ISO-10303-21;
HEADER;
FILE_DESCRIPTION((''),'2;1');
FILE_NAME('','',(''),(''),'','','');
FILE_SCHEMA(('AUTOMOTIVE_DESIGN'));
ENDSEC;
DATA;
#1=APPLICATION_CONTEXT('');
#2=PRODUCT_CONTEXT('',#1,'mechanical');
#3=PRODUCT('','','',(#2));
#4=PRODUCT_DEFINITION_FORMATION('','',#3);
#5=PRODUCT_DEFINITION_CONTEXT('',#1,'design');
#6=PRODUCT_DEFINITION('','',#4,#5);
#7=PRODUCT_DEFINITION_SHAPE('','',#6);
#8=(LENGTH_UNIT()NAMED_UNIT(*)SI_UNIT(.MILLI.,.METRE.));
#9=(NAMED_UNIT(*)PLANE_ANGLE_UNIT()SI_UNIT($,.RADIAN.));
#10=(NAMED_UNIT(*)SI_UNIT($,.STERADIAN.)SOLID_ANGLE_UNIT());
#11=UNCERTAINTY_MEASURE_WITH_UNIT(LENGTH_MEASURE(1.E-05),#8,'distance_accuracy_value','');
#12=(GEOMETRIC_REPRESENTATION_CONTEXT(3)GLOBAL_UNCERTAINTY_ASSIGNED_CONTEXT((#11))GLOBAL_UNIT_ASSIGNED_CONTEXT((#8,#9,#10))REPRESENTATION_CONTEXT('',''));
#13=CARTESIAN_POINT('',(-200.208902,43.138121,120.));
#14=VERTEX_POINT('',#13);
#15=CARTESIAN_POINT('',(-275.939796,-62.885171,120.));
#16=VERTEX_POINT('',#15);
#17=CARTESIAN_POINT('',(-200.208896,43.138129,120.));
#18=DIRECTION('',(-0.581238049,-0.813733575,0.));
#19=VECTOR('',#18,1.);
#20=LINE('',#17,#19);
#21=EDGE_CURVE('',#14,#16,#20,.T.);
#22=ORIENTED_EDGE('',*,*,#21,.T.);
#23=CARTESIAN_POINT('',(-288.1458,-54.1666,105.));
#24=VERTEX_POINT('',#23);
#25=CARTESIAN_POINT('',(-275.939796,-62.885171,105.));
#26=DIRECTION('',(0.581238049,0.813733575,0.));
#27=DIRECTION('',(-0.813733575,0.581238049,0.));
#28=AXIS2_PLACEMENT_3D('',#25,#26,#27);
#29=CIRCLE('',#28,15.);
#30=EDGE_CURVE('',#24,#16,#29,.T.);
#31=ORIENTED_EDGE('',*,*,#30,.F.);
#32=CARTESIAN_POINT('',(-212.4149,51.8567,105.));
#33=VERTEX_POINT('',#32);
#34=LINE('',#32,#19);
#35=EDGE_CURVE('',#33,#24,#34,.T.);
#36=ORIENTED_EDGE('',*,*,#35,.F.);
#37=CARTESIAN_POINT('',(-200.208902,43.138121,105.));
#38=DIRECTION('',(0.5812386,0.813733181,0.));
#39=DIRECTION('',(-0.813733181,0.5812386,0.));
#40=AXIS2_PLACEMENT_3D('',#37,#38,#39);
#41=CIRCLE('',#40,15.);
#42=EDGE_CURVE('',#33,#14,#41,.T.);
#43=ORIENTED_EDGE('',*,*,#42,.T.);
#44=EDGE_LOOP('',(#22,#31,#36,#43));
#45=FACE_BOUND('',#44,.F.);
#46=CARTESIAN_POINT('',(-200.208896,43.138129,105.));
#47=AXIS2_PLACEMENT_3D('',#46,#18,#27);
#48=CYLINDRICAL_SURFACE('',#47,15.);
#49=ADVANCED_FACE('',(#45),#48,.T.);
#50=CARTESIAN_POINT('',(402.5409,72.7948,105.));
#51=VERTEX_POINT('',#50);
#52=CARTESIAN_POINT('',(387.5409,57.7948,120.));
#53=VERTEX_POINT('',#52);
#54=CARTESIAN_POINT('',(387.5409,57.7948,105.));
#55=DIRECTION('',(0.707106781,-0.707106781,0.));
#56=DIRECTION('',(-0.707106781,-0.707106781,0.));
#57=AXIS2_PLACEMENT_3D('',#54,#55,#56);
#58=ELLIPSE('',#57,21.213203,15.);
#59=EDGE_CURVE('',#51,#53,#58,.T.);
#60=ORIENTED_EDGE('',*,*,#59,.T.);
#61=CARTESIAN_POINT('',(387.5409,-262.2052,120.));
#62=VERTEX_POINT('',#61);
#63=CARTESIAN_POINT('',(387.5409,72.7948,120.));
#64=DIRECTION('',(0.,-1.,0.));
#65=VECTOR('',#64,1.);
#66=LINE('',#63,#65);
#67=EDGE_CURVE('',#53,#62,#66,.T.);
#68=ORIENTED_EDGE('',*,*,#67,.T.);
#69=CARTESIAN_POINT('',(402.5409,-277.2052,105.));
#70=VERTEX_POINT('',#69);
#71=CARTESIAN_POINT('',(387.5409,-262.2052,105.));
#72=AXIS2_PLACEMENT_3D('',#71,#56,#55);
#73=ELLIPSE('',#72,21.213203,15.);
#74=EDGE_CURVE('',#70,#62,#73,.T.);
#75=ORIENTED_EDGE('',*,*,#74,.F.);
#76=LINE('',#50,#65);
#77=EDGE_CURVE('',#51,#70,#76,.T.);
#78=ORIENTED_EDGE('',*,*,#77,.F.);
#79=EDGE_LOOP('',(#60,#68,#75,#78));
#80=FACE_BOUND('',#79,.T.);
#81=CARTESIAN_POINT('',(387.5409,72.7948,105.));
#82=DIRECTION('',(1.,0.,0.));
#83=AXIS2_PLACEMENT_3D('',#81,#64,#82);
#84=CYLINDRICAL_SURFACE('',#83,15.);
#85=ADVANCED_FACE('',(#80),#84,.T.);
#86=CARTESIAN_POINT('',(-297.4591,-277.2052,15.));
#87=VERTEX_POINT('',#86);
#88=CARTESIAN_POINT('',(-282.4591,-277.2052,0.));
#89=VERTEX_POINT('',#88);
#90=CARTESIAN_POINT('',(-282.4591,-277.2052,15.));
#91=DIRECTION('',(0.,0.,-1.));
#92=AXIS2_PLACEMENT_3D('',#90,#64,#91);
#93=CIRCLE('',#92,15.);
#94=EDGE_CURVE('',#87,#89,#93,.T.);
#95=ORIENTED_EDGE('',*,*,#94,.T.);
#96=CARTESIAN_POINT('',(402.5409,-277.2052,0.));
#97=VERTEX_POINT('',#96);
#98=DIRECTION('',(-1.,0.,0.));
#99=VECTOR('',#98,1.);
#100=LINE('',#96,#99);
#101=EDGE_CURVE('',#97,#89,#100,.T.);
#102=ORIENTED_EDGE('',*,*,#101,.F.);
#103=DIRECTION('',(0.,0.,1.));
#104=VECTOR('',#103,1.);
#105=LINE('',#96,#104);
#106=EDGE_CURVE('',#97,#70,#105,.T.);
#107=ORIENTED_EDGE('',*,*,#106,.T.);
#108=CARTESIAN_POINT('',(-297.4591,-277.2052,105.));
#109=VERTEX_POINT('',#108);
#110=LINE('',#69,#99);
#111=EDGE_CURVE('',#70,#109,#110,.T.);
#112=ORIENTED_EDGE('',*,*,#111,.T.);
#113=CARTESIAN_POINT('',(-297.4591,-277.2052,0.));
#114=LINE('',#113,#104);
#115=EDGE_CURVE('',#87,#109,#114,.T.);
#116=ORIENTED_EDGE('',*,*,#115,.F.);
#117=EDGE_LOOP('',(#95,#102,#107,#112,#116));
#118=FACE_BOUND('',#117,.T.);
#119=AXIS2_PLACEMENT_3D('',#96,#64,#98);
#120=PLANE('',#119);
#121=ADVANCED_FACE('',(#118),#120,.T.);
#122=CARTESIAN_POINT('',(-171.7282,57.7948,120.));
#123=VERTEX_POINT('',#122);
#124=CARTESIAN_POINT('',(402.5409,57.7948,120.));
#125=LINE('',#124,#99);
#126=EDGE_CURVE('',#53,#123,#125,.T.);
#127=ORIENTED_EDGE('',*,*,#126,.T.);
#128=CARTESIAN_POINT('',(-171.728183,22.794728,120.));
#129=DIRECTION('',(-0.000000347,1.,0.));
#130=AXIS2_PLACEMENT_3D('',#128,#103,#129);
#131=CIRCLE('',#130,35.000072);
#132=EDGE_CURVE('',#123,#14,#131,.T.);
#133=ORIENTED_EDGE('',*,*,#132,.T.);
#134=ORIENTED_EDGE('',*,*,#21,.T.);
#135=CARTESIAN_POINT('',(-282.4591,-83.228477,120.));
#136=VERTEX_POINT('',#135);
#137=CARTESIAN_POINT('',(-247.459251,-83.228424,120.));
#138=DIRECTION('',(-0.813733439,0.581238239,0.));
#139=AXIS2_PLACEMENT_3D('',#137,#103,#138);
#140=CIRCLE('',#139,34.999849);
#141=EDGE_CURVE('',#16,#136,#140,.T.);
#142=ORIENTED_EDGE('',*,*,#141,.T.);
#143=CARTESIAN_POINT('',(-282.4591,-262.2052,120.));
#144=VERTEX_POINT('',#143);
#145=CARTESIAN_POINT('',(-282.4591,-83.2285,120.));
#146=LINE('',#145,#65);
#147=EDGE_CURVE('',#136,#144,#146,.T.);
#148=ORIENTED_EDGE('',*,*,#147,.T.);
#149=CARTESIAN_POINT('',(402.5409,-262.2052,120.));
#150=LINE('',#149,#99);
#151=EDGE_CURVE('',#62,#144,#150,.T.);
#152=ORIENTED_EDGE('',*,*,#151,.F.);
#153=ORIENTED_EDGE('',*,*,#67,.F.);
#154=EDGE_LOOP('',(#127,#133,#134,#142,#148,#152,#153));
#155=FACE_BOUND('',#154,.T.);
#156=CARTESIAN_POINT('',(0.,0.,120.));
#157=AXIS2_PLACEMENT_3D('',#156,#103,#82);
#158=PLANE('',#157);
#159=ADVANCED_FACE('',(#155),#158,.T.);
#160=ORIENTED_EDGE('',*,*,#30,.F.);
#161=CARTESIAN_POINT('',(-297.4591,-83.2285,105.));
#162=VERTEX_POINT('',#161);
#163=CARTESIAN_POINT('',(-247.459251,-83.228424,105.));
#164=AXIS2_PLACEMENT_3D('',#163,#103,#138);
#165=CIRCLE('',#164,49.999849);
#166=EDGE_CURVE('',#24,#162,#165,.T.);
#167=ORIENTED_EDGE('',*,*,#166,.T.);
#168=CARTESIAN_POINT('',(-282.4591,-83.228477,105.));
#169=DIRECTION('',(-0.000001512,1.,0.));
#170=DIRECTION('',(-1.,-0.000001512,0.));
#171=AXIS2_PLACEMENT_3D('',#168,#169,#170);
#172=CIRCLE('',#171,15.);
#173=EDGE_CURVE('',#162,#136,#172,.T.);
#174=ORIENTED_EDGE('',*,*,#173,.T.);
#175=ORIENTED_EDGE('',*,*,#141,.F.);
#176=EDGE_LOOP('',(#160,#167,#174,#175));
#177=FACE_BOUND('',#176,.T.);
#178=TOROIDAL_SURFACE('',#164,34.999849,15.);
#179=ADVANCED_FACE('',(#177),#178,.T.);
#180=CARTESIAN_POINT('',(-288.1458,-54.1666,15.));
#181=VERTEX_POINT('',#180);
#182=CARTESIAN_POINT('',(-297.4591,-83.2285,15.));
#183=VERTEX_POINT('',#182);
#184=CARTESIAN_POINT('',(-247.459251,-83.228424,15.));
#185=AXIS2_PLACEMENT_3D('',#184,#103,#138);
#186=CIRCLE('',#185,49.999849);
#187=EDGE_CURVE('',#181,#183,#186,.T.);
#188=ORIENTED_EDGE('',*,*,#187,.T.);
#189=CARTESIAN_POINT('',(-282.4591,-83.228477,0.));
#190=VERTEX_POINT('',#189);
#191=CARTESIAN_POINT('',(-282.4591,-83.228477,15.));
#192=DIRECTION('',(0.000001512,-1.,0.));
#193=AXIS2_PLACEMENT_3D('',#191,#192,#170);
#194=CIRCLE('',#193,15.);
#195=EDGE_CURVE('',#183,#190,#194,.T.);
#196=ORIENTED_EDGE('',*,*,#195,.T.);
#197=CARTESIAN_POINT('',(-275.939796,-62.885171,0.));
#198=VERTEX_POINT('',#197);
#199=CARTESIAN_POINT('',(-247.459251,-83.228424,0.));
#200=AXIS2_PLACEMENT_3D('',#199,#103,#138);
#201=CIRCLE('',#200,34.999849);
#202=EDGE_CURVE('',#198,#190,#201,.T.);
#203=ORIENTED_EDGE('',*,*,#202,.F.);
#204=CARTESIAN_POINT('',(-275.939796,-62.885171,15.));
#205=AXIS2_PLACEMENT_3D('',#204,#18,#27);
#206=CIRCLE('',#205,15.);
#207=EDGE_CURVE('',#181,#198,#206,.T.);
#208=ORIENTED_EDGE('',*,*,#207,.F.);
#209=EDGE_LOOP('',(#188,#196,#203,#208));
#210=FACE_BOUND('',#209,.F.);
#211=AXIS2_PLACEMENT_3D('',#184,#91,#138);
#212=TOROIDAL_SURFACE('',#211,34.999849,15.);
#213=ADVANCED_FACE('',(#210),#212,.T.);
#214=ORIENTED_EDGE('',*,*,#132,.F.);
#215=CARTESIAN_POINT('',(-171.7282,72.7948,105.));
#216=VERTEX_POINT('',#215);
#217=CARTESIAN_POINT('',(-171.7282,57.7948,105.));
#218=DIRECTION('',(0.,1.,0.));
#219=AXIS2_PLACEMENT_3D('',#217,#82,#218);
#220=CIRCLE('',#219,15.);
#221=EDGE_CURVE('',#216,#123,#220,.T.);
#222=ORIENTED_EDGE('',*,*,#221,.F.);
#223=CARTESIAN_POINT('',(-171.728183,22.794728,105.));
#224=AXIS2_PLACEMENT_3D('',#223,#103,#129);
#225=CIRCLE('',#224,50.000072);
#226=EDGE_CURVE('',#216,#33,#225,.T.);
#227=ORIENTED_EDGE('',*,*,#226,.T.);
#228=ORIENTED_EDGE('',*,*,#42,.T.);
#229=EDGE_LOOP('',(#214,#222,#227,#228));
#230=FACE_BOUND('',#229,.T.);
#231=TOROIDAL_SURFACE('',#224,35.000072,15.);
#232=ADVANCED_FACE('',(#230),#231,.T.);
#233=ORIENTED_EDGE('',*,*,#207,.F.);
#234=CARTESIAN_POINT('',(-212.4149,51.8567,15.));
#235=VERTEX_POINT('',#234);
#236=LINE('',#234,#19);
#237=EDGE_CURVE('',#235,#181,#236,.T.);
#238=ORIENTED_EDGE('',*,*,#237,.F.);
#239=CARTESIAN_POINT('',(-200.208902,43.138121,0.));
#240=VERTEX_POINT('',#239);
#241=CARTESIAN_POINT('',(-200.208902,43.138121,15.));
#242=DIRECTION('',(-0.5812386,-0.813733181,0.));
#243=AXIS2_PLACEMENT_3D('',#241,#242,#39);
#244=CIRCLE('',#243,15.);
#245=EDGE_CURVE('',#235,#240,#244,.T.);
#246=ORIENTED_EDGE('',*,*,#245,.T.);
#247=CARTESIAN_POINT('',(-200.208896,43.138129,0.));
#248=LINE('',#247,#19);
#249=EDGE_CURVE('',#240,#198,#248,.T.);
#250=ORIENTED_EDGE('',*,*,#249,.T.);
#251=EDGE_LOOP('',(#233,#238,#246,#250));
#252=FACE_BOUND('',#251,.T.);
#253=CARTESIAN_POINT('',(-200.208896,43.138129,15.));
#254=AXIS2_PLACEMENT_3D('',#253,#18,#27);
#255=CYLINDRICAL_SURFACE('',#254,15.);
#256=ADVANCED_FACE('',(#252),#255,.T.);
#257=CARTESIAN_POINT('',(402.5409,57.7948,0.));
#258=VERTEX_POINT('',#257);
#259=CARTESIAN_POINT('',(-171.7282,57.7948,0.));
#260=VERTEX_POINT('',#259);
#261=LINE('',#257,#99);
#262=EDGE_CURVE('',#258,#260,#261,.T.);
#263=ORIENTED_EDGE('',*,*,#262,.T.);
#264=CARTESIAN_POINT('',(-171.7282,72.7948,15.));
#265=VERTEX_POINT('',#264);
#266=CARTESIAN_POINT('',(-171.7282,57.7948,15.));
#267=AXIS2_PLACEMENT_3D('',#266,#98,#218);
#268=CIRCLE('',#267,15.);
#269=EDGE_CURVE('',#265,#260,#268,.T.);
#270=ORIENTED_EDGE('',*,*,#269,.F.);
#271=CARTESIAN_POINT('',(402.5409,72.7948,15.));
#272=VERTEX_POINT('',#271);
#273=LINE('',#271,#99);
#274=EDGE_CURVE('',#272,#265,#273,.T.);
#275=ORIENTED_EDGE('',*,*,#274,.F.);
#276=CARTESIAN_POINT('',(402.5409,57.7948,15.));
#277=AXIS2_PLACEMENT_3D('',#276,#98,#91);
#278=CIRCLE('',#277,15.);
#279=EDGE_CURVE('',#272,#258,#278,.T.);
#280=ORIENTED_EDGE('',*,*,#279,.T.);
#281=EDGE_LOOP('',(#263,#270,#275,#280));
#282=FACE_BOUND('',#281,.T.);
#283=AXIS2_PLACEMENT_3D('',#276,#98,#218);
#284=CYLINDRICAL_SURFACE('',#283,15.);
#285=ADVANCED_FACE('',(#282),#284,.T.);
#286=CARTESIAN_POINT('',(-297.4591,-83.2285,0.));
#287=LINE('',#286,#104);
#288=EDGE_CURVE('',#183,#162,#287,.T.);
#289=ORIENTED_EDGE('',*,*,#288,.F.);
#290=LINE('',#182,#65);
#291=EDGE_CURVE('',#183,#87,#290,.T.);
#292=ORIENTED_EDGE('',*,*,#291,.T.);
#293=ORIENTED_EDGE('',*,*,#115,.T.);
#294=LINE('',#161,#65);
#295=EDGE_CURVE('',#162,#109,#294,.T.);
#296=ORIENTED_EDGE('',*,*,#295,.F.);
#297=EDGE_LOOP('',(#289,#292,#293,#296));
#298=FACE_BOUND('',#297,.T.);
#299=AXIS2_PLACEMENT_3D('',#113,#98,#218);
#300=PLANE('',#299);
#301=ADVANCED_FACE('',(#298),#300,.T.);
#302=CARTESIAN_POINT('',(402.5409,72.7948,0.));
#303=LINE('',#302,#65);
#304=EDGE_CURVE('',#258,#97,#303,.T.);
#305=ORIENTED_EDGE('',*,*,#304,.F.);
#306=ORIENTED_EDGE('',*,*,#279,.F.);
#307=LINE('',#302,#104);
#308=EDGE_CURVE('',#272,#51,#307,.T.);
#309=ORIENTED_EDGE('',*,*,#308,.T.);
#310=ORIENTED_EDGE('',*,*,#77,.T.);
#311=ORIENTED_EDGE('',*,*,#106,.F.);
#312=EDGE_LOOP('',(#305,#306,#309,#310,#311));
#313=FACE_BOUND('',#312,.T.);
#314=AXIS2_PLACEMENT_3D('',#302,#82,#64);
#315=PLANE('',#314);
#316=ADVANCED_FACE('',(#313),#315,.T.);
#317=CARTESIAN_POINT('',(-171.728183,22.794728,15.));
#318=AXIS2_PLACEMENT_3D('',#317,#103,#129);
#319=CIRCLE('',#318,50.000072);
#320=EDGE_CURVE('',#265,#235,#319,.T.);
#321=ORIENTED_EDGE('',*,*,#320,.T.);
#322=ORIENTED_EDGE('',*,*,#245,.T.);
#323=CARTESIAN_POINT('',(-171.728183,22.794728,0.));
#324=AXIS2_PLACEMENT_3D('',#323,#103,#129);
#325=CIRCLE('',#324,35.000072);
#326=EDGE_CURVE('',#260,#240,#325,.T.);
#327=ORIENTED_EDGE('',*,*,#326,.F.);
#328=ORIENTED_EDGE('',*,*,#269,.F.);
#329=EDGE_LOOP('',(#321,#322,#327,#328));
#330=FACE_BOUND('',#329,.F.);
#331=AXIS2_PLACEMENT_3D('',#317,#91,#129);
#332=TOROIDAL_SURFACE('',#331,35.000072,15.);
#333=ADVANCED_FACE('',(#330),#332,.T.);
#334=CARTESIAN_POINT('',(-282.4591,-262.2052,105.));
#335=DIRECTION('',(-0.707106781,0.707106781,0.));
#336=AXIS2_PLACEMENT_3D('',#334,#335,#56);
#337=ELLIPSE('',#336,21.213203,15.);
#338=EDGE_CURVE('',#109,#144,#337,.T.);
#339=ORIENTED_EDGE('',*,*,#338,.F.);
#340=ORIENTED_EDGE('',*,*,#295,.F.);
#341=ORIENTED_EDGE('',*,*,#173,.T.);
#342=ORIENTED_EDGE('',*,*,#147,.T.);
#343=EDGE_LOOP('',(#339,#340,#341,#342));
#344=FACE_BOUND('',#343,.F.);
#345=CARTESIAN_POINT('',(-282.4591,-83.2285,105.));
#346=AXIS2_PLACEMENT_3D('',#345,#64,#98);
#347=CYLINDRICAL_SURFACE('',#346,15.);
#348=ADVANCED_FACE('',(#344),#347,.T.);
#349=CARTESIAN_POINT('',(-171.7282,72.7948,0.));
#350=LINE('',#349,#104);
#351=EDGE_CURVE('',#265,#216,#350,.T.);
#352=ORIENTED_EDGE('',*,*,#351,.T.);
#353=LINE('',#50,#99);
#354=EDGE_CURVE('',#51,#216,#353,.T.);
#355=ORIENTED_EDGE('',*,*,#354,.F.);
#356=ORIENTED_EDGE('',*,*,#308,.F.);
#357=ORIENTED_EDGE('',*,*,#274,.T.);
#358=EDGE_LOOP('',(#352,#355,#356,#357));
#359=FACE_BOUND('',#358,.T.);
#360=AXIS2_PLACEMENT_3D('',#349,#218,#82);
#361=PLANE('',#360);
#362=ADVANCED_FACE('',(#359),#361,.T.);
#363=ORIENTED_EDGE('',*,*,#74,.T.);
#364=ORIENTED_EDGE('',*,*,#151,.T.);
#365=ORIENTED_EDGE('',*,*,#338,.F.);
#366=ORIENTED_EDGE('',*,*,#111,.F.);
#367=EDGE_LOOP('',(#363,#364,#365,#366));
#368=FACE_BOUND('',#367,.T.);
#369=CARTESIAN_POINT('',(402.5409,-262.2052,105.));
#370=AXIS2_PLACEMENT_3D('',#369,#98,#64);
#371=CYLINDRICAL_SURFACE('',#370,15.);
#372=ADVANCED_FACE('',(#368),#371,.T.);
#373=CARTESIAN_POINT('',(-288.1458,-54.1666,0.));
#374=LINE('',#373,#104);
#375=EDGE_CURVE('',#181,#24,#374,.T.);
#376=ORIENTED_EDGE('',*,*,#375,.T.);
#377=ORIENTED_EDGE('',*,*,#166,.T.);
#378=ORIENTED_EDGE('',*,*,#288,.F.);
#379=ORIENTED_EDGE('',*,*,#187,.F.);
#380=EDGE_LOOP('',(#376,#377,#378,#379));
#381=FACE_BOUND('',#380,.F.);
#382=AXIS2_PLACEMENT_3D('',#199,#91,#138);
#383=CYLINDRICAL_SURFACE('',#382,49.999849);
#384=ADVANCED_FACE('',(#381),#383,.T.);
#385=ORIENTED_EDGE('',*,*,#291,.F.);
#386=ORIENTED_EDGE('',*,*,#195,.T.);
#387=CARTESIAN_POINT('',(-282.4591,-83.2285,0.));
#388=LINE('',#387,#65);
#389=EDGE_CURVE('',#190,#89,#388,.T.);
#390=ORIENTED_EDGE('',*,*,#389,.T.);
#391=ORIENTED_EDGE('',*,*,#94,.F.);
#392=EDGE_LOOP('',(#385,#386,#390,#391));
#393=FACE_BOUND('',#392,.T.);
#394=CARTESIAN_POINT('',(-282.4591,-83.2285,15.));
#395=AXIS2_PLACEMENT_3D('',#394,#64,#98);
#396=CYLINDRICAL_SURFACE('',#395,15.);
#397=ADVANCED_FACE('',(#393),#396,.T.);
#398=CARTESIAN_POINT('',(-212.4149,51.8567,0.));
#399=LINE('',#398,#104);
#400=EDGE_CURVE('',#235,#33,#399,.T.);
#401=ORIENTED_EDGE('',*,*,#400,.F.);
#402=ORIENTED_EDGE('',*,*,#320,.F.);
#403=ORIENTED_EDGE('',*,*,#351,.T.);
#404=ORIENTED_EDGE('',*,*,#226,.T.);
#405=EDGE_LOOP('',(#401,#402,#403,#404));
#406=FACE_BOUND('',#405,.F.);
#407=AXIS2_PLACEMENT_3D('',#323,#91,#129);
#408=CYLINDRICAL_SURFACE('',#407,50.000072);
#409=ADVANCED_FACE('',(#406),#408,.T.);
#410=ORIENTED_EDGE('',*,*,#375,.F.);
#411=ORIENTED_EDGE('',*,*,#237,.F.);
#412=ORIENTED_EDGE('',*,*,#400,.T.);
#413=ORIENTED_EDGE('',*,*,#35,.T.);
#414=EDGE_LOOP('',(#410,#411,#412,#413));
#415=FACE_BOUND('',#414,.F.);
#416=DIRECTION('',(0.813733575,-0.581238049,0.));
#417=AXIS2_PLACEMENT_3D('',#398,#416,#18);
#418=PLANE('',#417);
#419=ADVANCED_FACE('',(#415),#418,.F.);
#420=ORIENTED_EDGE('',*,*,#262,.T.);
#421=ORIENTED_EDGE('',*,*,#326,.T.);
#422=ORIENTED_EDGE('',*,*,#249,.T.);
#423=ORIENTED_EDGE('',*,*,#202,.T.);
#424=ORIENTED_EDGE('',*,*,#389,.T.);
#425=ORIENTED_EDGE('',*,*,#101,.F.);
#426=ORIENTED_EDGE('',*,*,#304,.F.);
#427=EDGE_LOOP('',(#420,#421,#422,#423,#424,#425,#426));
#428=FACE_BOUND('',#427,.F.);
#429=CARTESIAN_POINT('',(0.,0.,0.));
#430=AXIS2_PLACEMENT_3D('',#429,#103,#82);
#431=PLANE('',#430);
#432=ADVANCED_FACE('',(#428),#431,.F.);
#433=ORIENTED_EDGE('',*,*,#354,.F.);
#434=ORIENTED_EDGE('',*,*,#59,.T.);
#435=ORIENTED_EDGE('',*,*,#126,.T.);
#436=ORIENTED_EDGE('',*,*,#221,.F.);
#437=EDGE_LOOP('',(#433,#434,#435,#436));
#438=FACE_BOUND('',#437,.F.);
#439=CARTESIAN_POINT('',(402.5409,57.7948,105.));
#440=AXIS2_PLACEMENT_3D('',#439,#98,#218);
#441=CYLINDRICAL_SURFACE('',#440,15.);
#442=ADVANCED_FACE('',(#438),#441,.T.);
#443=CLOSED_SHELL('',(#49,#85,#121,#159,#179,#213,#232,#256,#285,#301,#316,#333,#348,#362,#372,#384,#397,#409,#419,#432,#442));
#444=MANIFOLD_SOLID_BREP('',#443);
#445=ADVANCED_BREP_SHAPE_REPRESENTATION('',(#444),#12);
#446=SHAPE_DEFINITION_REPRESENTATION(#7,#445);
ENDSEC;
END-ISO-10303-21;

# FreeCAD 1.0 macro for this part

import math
import FreeCAD as App
import Part
import Sketcher
from FreeCAD import Vector
Q = App.Units.Quantity


def edges_at(feature, points):
    """Names of the edges that pass closest to the given points."""
    edges = feature.Shape.Edges
    near = lambda p: min(range(len(edges)), key=lambda i: edges[i].distToShape(Part.Vertex(*p))[0])
    return sorted({f"Edge{near(p) + 1}" for p in points})

doc = App.newDocument("Part")
params = doc.addObject("Spreadsheet::Sheet", "Params")
for row, (alias, value) in enumerate([
    ("sketch1_radius", "50 mm"),
    ("sketch1_width", "700 mm"),
    ("sketch1_height", "350 mm"),
    ("pad1_length", "120 mm"),
    ("fillet_radius", "15 mm"),
], start=1):
    params.set(f"A{row}", alias)
    params.set(f"B{row}", "=" + value)
    params.setAlias(f"B{row}", alias)

body = doc.addObject("PartDesign::Body", "Body")

sketch1 = body.newObject("Sketcher::SketchObject", "Sketch")
sketch1.AttachmentSupport = (doc.getObject("XY_Plane"), [""])
sketch1.MapMode = "FlatFace"
sketch1.addGeometry([
    Part.LineSegment(Vector(402.5409, 72.7948, 0), Vector(-171.7282, 72.7948, 0)),
    Part.ArcOfCircle(Part.Circle(Vector(-171.7282, 22.7948, 0), Vector(0, 0, 1), 50), math.radians(90), math.radians(144.462349)),
    Part.LineSegment(Vector(-212.4149, 51.8567, 0), Vector(-288.1458, -54.1666, 0)),
    Part.ArcOfCircle(Part.Circle(Vector(-247.4591, -83.2285, 0), Vector(0, 0, 1), 50.000016), math.radians(144.462349), math.radians(180)),
    Part.LineSegment(Vector(-297.4591, -83.2285, 0), Vector(-297.4591, -277.2052, 0)),
    Part.LineSegment(Vector(-297.4591, -277.2052, 0), Vector(402.5409, -277.2052, 0)),
    Part.LineSegment(Vector(402.5409, -277.2052, 0), Vector(402.5409, 72.7948, 0)),
], False)
sketch1.addConstraint([
    Sketcher.Constraint("Tangent", 0, 2, 1, 1),
    Sketcher.Constraint("Tangent", 1, 2, 2, 1),
    Sketcher.Constraint("Tangent", 2, 2, 3, 1),
    Sketcher.Constraint("Tangent", 3, 2, 4, 1),
    Sketcher.Constraint("Coincident", 4, 2, 5, 1),
    Sketcher.Constraint("Coincident", 5, 2, 6, 1),
    Sketcher.Constraint("Coincident", 6, 2, 0, 1),
    Sketcher.Constraint("Horizontal", 0),
    Sketcher.Constraint("Vertical", 4),
    Sketcher.Constraint("Horizontal", 5),
    Sketcher.Constraint("Vertical", 6),
    Sketcher.Constraint("Equal", 1, 3),
    Sketcher.Constraint("Radius", 1, Q("50 mm")),
    Sketcher.Constraint("DistanceX", 5, 1, 5, 2, Q("700 mm")),
    Sketcher.Constraint("DistanceY", 6, 1, 6, 2, Q("350 mm")),
    Sketcher.Constraint("DistanceX", 0, 2, 0, 1, Q("574.269 mm")),
    Sketcher.Constraint("DistanceY", 4, 2, 4, 1, Q("193.9767 mm")),
    Sketcher.Constraint("DistanceX", 3, 3, -1, 1, Q("247.459 mm")),
    Sketcher.Constraint("DistanceY", -1, 1, 1, 3, Q("22.7948 mm")),
])
sketch1.setExpression("Constraints[12]", "Params.sketch1_radius")
sketch1.setExpression("Constraints[13]", "Params.sketch1_width")
sketch1.setExpression("Constraints[14]", "Params.sketch1_height")
pad1 = body.newObject("PartDesign::Pad", "Pad")
pad1.Profile = sketch1
pad1.setExpression("Length", "Params.pad1_length")
doc.recompute()

fillet = body.newObject("PartDesign::Fillet", "Fillet")
fillet.Base = (pad1, edges_at(pad1, [
    (-194.607, 67.253, 120),
    (-250.28, -1.155, 120),
    (-295.074, -67.97, 120),
    (-297.459, -180.217, 120),
    (115.406, 72.795, 120),
    (-194.607, 67.253, 0),
    (-250.28, -1.155, 0),
    (-295.074, -67.97, 0),
    (-297.459, -180.217, 0),
    (115.406, 72.795, 0),
    (402.541, -102.205, 120),
    (52.541, -277.205, 120),
]))
fillet.setExpression("Radius", "Params.fillet_radius")

doc.recompute()
